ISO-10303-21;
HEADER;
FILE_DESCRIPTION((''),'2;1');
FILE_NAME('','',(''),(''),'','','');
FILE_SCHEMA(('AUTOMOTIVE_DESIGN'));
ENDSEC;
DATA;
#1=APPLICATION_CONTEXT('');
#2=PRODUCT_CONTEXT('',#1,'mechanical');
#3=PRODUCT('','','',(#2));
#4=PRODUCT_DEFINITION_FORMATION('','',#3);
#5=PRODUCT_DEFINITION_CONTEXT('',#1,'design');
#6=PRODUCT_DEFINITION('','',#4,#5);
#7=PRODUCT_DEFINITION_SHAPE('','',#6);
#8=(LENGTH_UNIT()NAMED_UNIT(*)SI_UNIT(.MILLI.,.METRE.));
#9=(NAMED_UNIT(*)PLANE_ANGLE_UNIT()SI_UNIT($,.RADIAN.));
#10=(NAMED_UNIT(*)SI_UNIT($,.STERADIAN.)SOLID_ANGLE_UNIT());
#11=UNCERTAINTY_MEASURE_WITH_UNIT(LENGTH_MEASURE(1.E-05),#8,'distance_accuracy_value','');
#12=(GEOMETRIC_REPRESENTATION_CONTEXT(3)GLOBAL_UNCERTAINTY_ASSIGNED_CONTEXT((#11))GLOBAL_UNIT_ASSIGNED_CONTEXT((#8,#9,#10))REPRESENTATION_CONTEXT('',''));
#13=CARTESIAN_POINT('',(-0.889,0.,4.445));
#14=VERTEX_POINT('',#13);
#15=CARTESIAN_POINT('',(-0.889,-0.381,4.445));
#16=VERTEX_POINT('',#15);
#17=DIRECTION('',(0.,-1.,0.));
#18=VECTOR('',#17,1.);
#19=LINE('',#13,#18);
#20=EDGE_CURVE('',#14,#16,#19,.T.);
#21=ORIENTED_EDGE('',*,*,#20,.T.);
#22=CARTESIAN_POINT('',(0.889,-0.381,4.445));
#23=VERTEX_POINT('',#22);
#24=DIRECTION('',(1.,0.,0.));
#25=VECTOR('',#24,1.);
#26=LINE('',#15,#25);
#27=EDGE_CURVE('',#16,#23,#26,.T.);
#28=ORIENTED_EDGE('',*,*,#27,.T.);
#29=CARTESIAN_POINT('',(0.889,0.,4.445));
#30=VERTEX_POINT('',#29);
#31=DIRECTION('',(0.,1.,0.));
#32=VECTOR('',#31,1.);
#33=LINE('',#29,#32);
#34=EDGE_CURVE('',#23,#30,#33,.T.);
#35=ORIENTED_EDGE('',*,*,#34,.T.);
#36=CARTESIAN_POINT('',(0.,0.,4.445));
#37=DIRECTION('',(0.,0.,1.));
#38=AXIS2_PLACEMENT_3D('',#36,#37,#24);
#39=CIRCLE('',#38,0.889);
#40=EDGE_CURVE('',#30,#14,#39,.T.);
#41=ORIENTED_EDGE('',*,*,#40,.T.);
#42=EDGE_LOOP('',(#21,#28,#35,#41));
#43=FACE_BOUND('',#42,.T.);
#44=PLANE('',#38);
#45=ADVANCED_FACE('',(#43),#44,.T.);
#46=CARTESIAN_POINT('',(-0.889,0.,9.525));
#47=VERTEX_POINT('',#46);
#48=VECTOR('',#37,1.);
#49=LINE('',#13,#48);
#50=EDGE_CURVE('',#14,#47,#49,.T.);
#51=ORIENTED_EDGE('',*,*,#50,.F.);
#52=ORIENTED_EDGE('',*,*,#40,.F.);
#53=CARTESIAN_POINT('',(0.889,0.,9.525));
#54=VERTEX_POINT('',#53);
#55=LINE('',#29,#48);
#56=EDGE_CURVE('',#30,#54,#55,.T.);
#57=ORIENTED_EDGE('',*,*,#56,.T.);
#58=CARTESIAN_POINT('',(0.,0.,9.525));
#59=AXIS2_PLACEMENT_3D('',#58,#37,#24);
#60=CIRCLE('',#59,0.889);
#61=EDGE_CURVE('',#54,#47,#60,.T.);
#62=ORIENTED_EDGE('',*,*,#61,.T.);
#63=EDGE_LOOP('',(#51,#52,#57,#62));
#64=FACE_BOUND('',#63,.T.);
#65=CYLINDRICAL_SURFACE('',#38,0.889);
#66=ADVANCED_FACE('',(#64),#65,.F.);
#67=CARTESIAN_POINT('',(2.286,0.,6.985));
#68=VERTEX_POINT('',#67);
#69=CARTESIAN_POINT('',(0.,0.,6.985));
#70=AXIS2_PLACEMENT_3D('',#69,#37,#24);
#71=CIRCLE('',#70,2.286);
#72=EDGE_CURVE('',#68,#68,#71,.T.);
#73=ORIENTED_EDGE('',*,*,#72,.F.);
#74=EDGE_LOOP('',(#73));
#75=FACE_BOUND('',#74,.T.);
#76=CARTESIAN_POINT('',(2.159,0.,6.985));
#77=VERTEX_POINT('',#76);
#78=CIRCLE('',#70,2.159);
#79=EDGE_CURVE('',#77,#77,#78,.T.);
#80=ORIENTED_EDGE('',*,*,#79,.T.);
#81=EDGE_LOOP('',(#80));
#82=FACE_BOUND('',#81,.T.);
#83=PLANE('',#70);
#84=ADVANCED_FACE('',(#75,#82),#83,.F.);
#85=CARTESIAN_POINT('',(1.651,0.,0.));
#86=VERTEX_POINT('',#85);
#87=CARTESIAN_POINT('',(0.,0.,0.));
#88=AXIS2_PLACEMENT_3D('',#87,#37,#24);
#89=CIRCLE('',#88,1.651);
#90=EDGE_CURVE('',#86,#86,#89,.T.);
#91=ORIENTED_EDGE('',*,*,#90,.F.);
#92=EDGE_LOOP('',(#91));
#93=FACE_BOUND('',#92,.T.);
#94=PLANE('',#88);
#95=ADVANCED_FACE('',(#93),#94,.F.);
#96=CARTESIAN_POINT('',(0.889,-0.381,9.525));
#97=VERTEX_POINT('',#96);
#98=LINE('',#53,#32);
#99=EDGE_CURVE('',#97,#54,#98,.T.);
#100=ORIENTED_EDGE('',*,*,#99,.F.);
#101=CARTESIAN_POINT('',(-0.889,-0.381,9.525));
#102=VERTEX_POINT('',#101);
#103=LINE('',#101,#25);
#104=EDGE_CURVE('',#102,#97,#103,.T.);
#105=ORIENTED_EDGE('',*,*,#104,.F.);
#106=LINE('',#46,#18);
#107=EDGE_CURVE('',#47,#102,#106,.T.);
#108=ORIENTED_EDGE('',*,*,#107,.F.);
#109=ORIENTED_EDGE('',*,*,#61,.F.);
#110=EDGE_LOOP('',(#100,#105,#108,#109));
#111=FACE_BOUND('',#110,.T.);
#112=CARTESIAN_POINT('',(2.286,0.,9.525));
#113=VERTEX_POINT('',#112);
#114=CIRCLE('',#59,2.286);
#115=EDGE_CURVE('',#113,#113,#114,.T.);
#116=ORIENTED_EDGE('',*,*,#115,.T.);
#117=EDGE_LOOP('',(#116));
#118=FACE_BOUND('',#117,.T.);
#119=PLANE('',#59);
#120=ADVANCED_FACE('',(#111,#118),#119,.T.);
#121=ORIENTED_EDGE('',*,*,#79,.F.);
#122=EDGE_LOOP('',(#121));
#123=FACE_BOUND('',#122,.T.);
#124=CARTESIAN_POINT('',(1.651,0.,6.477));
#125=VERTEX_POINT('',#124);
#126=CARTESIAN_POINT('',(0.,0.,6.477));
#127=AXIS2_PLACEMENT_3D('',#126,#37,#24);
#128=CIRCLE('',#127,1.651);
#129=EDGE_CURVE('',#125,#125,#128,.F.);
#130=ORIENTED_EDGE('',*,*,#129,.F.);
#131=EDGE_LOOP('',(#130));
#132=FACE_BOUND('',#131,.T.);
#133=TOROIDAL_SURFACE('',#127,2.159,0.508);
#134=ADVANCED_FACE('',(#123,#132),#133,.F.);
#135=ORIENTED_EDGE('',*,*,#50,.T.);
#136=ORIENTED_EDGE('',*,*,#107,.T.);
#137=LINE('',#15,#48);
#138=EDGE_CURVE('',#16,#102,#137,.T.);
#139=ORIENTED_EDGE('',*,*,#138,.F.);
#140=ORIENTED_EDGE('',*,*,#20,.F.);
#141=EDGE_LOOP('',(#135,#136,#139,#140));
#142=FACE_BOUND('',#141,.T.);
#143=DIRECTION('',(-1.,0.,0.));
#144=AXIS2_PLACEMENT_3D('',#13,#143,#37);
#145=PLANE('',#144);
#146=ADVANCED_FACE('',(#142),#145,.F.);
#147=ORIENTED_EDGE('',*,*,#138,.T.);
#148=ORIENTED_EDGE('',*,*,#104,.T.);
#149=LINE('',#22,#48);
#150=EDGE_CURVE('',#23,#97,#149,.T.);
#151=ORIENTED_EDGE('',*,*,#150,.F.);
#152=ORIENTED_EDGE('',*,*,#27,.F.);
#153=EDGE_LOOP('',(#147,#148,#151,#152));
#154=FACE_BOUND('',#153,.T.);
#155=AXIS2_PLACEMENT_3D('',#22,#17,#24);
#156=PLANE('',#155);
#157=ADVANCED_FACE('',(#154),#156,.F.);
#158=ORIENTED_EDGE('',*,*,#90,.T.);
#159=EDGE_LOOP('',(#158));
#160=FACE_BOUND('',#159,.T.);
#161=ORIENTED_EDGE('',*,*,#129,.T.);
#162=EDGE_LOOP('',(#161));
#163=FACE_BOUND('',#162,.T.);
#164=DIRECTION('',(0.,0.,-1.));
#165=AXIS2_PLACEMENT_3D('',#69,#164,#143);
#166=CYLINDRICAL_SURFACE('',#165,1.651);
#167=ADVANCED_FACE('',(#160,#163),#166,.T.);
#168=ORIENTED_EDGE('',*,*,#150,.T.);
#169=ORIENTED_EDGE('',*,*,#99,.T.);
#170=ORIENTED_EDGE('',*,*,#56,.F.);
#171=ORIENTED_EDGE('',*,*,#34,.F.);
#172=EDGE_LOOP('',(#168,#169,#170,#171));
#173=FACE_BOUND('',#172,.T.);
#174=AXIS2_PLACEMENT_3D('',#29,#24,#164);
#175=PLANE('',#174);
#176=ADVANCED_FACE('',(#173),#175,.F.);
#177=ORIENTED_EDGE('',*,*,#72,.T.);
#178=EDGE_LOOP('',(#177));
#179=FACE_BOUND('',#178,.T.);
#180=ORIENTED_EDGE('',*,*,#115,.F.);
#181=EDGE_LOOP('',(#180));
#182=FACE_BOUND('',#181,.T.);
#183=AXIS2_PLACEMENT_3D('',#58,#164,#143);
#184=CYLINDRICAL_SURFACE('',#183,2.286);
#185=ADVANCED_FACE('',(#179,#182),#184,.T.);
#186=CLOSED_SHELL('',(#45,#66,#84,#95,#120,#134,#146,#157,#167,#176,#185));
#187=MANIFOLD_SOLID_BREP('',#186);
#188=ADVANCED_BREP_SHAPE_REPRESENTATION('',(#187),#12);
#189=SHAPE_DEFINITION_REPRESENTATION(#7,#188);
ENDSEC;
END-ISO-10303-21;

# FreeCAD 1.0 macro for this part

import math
import FreeCAD as App
import Part
import Sketcher

V = App.Vector
Q = App.Units.Quantity


def edges_at(feature, points):
    """Names of the edges that pass closest to the given points."""
    edges = feature.Shape.Edges
    near = lambda p: min(range(len(edges)), key=lambda i: edges[i].distToShape(Part.Vertex(*p))[0])
    return sorted({f"Edge{near(p) + 1}" for p in points})

doc = App.newDocument("Part")
params = doc.addObject("Spreadsheet::Sheet", "Params")
for row, (alias, value) in enumerate([
    ("sketch1_diameter", "0.13 in"),
    ("pad1_length", "0.275 in"),
    ("sketch2_diameter", "0.18 in"),
    ("pad2_length", "0.1 in"),
    ("sketch3_radius", "0.035 in"),
    ("sketch3_height", "0.015 in"),
    ("pocket1_length", "0.1 in"),
    ("pocket1_length2", "0.1 in"),
    ("fillet_radius", "0.02 in"),
], start=1):
    params.set(f"A{row}", alias)
    params.set(f"B{row}", "=" + value)
    params.setAlias(f"B{row}", alias)

body = doc.addObject("PartDesign::Body", "Body")

# Sketch on XY plane
sketch1 = body.newObject("Sketcher::SketchObject", "Sketch")
sketch1.AttachmentSupport = (doc.getObject("XY_Plane"), [""])
sketch1.MapMode = "FlatFace"
sketch1.addGeometry(Part.Circle(V(0, 0, 0), V(0, 0, 1), 1.651), False)
sketch1.addConstraint([
    Sketcher.Constraint("Coincident", 0, 3, -1, 1),
    Sketcher.Constraint("Diameter", 0, Q("0.13 in")),
])
sketch1.setExpression("Constraints[1]", "Params.sketch1_diameter")
pad1 = body.newObject("PartDesign::Pad", "Pad")
pad1.Profile = sketch1
pad1.setExpression("Length", "Params.pad1_length")

# Sketch on XY plane
sketch2 = body.newObject("Sketcher::SketchObject", "Sketch001")
sketch2.AttachmentSupport = (doc.getObject("XY_Plane"), [""])
sketch2.MapMode = "FlatFace"
sketch2.AttachmentOffset = App.Placement(V(0, 0, 0.275 * 25.4), App.Rotation())
sketch2.addGeometry(Part.Circle(V(0, 0, 0), V(0, 0, 1), 2.286), False)
sketch2.addConstraint([
    Sketcher.Constraint("Coincident", 0, 3, -1, 1),
    Sketcher.Constraint("Diameter", 0, Q("0.18 in")),
])
sketch2.setExpression("Constraints[1]", "Params.sketch2_diameter")
pad2 = body.newObject("PartDesign::Pad", "Pad001")
pad2.Profile = sketch2
pad2.setExpression("Length", "Params.pad2_length")

# Sketch on XY plane
sketch3 = body.newObject("Sketcher::SketchObject", "Sketch002")
sketch3.AttachmentSupport = (doc.getObject("XY_Plane"), [""])
sketch3.MapMode = "FlatFace"
sketch3.AttachmentOffset = App.Placement(V(0, 0, 0.275 * 25.4), App.Rotation())
sketch3.addGeometry([
    Part.LineSegment(V(-0.889, 0, 0), V(-0.889, -0.381, 0)),
    Part.LineSegment(V(-0.889, -0.381, 0), V(0.889, -0.381, 0)),
    Part.LineSegment(V(0.889, -0.381, 0), V(0.889, 0, 0)),
    Part.ArcOfCircle(Part.Circle(V(0, 0, 0), V(0, 0, 1), 0.889), math.radians(0), math.radians(180)),
], False)
sketch3.addConstraint([
    Sketcher.Constraint("Coincident", 0, 2, 1, 1),
    Sketcher.Constraint("Coincident", 1, 2, 2, 1),
    Sketcher.Constraint("Tangent", 2, 2, 3, 1),
    Sketcher.Constraint("Tangent", 3, 2, 0, 1),
    Sketcher.Constraint("Vertical", 0),
    Sketcher.Constraint("Horizontal", 1),
    Sketcher.Constraint("Vertical", 2),
    Sketcher.Constraint("Coincident", 3, 3, -1, 1),
    Sketcher.Constraint("Radius", 3, Q("0.035 in")),
    Sketcher.Constraint("DistanceY", 0, 2, 0, 1, Q("0.015 in")),
])
sketch3.setExpression("Constraints[8]", "Params.sketch3_radius")
sketch3.setExpression("Constraints[9]", "Params.sketch3_height")
pocket1 = body.newObject("PartDesign::Pocket", "Pocket")
pocket1.Profile = sketch3
pocket1.Type = "TwoLengths"
pocket1.setExpression("Length", "Params.pocket1_length")
pocket1.setExpression("Length2", "Params.pocket1_length2")
pocket1.Reversed = True
doc.recompute()

fillet = body.newObject("PartDesign::Fillet", "Fillet")
fillet.Base = (pocket1, edges_at(pocket1, [(-1.651, 0, 6.985)]))
fillet.setExpression("Radius", "Params.fillet_radius")

doc.recompute()
